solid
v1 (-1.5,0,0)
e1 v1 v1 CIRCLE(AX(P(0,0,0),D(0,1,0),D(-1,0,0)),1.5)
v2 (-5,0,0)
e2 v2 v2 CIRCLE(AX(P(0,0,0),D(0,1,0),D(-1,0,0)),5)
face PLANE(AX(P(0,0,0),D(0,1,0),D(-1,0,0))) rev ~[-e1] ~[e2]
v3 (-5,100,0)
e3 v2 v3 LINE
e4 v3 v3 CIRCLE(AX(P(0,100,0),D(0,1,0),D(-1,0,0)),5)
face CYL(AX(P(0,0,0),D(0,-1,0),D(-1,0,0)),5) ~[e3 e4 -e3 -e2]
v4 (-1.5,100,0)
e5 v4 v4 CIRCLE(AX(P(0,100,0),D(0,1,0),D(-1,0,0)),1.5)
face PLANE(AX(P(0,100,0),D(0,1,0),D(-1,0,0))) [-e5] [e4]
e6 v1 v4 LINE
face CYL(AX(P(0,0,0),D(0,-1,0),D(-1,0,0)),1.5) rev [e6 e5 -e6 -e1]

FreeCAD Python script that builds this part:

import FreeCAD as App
import Part
import Sketcher
Q = App.Units.Quantity

doc = App.newDocument("Part")
body = doc.addObject("PartDesign::Body", "Body")

# Sketch on XZ plane
sketch1 = doc.addObject("Sketcher::SketchObject", "Sketch")
body.addObject(sketch1)
sketch1.AttachmentSupport = (doc.XZ_Plane, [""])
sketch1.MapMode = "FlatFace"
sketch1.addGeometry(Part.Circle(App.Vector(0, 0, 0), App.Vector(0, 0, 1), 5), False)
sketch1.addGeometry(Part.Circle(App.Vector(0, 0, 0), App.Vector(0, 0, 1), 1.5), False)
sketch1.addConstraint(Sketcher.Constraint("Coincident", 0, 3, -1, 1))
sketch1.addConstraint(Sketcher.Constraint("Coincident", 1, 3, -1, 1))
sketch1.addConstraint(Sketcher.Constraint("Diameter", 0, Q("0.3937 in")))
sketch1.addConstraint(Sketcher.Constraint("Diameter", 1, Q("0.1181 in")))
pad1 = doc.addObject("PartDesign::Pad", "Pad")
body.addObject(pad1)
pad1.Profile = sketch1
pad1.Length = Q("3.9370079 in")
pad1.Reversed = True

doc.recompute()
